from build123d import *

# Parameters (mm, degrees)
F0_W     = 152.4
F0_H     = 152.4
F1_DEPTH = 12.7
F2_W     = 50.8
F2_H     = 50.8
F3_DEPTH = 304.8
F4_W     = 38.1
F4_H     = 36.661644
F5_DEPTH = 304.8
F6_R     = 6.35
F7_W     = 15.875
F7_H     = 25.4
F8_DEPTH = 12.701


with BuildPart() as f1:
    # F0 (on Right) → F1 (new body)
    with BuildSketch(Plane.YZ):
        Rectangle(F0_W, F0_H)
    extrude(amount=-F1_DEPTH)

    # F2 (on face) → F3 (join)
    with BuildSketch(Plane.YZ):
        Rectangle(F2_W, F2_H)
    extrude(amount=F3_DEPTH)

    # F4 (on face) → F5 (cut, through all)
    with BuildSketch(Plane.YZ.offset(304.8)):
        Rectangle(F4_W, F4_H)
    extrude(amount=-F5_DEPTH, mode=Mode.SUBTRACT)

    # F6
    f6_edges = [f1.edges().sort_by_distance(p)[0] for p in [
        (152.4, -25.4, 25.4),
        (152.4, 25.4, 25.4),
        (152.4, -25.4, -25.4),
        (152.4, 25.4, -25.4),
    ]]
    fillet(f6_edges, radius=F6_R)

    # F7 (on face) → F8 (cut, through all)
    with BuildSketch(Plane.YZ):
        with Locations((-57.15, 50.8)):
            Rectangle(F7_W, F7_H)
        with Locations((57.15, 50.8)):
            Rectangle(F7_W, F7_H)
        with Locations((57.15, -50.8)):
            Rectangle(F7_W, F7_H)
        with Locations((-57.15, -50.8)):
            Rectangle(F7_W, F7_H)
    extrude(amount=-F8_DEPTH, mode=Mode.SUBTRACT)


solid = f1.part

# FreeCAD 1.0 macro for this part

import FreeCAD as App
import Part
import Sketcher
Q = App.Units.Quantity


def edges_at(feature, points):
    """Names of the edges that pass closest to the given points."""
    edges = feature.Shape.Edges
    near = lambda p: min(range(len(edges)), key=lambda i: edges[i].distToShape(Part.Vertex(*p))[0])
    return sorted({f"Edge{near(p) + 1}" for p in points})


def add_polygon(sketch, points):
    """Adds a closed chain of lines whose ends are joined by coincident constraints."""
    first, n = sketch.GeometryCount, len(points)
    for a, b in zip(points, points[1:] + points[:1]):
        sketch.addGeometry(Part.LineSegment(App.Vector(*a, 0), App.Vector(*b, 0)), False)
    for i in range(n):
        sketch.addConstraint(Sketcher.Constraint("Coincident", first + i, 2, first + (i + 1) % n, 1))

doc = App.newDocument("Part")
params = doc.addObject("Spreadsheet::Sheet", "Params")
for row, (alias, value) in enumerate([
    ("sketch1_width", "6 in"),
    ("pad1_length", "0.5 in"),
    ("sketch2_width", "2 in"),
    ("pad2_length", "12 in"),
    ("sketch3_width", "1.5 in"),
    ("pocket1_length", "12 in"),
    ("fillet_radius", "0.25 in"),
    ("sketch4_height", "1 in"),
    ("sketch4_width", "0.625 in"),
], start=1):
    params.set(f"A{row}", alias)
    params.set(f"B{row}", "=" + value)
    params.setAlias(f"B{row}", alias)

body = doc.addObject("PartDesign::Body", "Body")

# Sketch on YZ plane
sketch1 = body.newObject("Sketcher::SketchObject", "Sketch")
sketch1.AttachmentSupport = (doc.getObject("YZ_Plane"), [""])
sketch1.MapMode = "FlatFace"
add_polygon(sketch1, [(-76.2, 76.2), (-76.2, -76.2), (76.2, -76.2), (76.2, 76.2)])  # lines 0-3
sketch1.addConstraint(Sketcher.Constraint("Vertical", 0))
sketch1.addConstraint(Sketcher.Constraint("Horizontal", 1))
sketch1.addConstraint(Sketcher.Constraint("Vertical", 2))
sketch1.addConstraint(Sketcher.Constraint("Horizontal", 3))
sketch1.addConstraint(Sketcher.Constraint("Symmetric", 0, 2, 2, 2, -1, 1))
sketch1.addConstraint(Sketcher.Constraint("Equal", 3, 0))
sketch1.addConstraint(Sketcher.Constraint("DistanceX", 1, 1, 1, 2, Q("6 in")))
sketch1.setExpression("Constraints[10]", "Params.sketch1_width")
pad1 = body.newObject("PartDesign::Pad", "Pad")
pad1.Profile = sketch1
pad1.setExpression("Length", "Params.pad1_length")
pad1.Reversed = True

# Sketch on YZ plane
sketch2 = body.newObject("Sketcher::SketchObject", "Sketch001")
sketch2.AttachmentSupport = (doc.getObject("YZ_Plane"), [""])
sketch2.MapMode = "FlatFace"
add_polygon(sketch2, [(-25.4, 25.4), (-25.4, -25.4), (25.4, -25.4), (25.4, 25.4)])  # lines 0-3
sketch2.addConstraint(Sketcher.Constraint("Vertical", 0))
sketch2.addConstraint(Sketcher.Constraint("Horizontal", 1))
sketch2.addConstraint(Sketcher.Constraint("Vertical", 2))
sketch2.addConstraint(Sketcher.Constraint("Horizontal", 3))
sketch2.addConstraint(Sketcher.Constraint("Symmetric", 0, 2, 2, 2, -1, 1))
sketch2.addConstraint(Sketcher.Constraint("Equal", 3, 0))
sketch2.addConstraint(Sketcher.Constraint("DistanceX", 1, 1, 1, 2, Q("2 in")))
sketch2.setExpression("Constraints[10]", "Params.sketch2_width")
pad2 = body.newObject("PartDesign::Pad", "Pad001")
pad2.Profile = sketch2
pad2.setExpression("Length", "Params.pad2_length")

# Sketch on YZ plane
sketch3 = body.newObject("Sketcher::SketchObject", "Sketch002")
sketch3.AttachmentSupport = (doc.getObject("YZ_Plane"), [""])
sketch3.MapMode = "FlatFace"
sketch3.AttachmentOffset = App.Placement(App.Vector(0, 0, 12 * 25.4), App.Rotation())
add_polygon(sketch3, [(-19.05, 18.330822), (-19.05, -18.330822), (19.05, -18.330822), (19.05, 18.330822)])  # lines 0-3
sketch3.addConstraint(Sketcher.Constraint("Vertical", 0))
sketch3.addConstraint(Sketcher.Constraint("Horizontal", 1))
sketch3.addConstraint(Sketcher.Constraint("Vertical", 2))
sketch3.addConstraint(Sketcher.Constraint("Horizontal", 3))
sketch3.addConstraint(Sketcher.Constraint("Symmetric", 0, 2, 2, 2, -1, 1))
sketch3.addConstraint(Sketcher.Constraint("DistanceX", 1, 1, 1, 2, Q("1.5 in")))
sketch3.addConstraint(Sketcher.Constraint("DistanceY", 0, 2, 0, 1, 36.661644))
sketch3.setExpression("Constraints[9]", "Params.sketch3_width")
pocket1 = body.newObject("PartDesign::Pocket", "Pocket")
pocket1.Profile = sketch3
pocket1.setExpression("Length", "Params.pocket1_length")
doc.recompute()

fillet = body.newObject("PartDesign::Fillet", "Fillet")
fillet.Base = (pocket1, edges_at(pocket1, [
    (152.4, -25.4, 25.4),
    (152.4, 25.4, 25.4),
    (152.4, -25.4, -25.4),
    (152.4, 25.4, -25.4),
]))
fillet.setExpression("Radius", "Params.fillet_radius")

# Sketch on YZ plane
sketch4 = body.newObject("Sketcher::SketchObject", "Sketch003")
sketch4.AttachmentSupport = (doc.getObject("YZ_Plane"), [""])
sketch4.MapMode = "FlatFace"
add_polygon(sketch4, [(-65.0875, 63.5), (-65.0875, 38.1), (-49.2125, 38.1), (-49.2125, 63.5)])  # lines 0-3
add_polygon(sketch4, [(49.2125, 63.5), (49.2125, 38.1), (65.0875, 38.1), (65.0875, 63.5)])  # lines 4-7
add_polygon(sketch4, [(49.2125, -38.1), (49.2125, -63.5), (65.0875, -63.5), (65.0875, -38.1)])  # lines 8-11
add_polygon(sketch4, [(-65.0875, -38.1), (-65.0875, -63.5), (-49.2125, -63.5), (-49.2125, -38.1)])  # lines 12-15
sketch4.addConstraint(Sketcher.Constraint("Vertical", 0))
sketch4.addConstraint(Sketcher.Constraint("Horizontal", 1))
sketch4.addConstraint(Sketcher.Constraint("Vertical", 2))
sketch4.addConstraint(Sketcher.Constraint("Horizontal", 3))
sketch4.addConstraint(Sketcher.Constraint("Vertical", 4))
sketch4.addConstraint(Sketcher.Constraint("Horizontal", 5))
sketch4.addConstraint(Sketcher.Constraint("Vertical", 6))
sketch4.addConstraint(Sketcher.Constraint("Horizontal", 7))
sketch4.addConstraint(Sketcher.Constraint("Vertical", 8))
sketch4.addConstraint(Sketcher.Constraint("Horizontal", 9))
sketch4.addConstraint(Sketcher.Constraint("Vertical", 10))
sketch4.addConstraint(Sketcher.Constraint("Horizontal", 11))
sketch4.addConstraint(Sketcher.Constraint("Vertical", 12))
sketch4.addConstraint(Sketcher.Constraint("Horizontal", 13))
sketch4.addConstraint(Sketcher.Constraint("Vertical", 14))
sketch4.addConstraint(Sketcher.Constraint("Horizontal", 15))
sketch4.addConstraint(Sketcher.Constraint("Symmetric", 2, 2, 8, 2, -1, 1))
sketch4.addConstraint(Sketcher.Constraint("Symmetric", 0, 2, 10, 2, -1, 1))
sketch4.addConstraint(Sketcher.Constraint("Symmetric", 6, 2, 12, 2, -1, 1))
sketch4.addConstraint(Sketcher.Constraint("Symmetric", 4, 2, 14, 2, -1, 1))
sketch4.addConstraint(Sketcher.Constraint("Symmetric", 1, 2, 4, 2, -2))
sketch4.addConstraint(Sketcher.Constraint("Symmetric", 3, 2, 6, 2, -2))
sketch4.addConstraint(Sketcher.Constraint("DistanceY", 0, 2, 0, 1, Q("1 in")))
sketch4.addConstraint(Sketcher.Constraint("DistanceY", 8, 2, 4, 2, Q("4 in")))
sketch4.addConstraint(Sketcher.Constraint("DistanceX", 0, 2, 4, 2, Q("4.5 in")))
sketch4.addConstraint(Sketcher.Constraint("DistanceX", 1, 1, 1, 2, Q("0.625 in")))
sketch4.setExpression("Constraints[38]", "Params.sketch4_height")
sketch4.setExpression("Constraints[41]", "Params.sketch4_width")
pocket2 = body.newObject("PartDesign::Pocket", "Pocket001")
pocket2.Profile = sketch4
pocket2.Type = "ThroughAll"

doc.recompute()
